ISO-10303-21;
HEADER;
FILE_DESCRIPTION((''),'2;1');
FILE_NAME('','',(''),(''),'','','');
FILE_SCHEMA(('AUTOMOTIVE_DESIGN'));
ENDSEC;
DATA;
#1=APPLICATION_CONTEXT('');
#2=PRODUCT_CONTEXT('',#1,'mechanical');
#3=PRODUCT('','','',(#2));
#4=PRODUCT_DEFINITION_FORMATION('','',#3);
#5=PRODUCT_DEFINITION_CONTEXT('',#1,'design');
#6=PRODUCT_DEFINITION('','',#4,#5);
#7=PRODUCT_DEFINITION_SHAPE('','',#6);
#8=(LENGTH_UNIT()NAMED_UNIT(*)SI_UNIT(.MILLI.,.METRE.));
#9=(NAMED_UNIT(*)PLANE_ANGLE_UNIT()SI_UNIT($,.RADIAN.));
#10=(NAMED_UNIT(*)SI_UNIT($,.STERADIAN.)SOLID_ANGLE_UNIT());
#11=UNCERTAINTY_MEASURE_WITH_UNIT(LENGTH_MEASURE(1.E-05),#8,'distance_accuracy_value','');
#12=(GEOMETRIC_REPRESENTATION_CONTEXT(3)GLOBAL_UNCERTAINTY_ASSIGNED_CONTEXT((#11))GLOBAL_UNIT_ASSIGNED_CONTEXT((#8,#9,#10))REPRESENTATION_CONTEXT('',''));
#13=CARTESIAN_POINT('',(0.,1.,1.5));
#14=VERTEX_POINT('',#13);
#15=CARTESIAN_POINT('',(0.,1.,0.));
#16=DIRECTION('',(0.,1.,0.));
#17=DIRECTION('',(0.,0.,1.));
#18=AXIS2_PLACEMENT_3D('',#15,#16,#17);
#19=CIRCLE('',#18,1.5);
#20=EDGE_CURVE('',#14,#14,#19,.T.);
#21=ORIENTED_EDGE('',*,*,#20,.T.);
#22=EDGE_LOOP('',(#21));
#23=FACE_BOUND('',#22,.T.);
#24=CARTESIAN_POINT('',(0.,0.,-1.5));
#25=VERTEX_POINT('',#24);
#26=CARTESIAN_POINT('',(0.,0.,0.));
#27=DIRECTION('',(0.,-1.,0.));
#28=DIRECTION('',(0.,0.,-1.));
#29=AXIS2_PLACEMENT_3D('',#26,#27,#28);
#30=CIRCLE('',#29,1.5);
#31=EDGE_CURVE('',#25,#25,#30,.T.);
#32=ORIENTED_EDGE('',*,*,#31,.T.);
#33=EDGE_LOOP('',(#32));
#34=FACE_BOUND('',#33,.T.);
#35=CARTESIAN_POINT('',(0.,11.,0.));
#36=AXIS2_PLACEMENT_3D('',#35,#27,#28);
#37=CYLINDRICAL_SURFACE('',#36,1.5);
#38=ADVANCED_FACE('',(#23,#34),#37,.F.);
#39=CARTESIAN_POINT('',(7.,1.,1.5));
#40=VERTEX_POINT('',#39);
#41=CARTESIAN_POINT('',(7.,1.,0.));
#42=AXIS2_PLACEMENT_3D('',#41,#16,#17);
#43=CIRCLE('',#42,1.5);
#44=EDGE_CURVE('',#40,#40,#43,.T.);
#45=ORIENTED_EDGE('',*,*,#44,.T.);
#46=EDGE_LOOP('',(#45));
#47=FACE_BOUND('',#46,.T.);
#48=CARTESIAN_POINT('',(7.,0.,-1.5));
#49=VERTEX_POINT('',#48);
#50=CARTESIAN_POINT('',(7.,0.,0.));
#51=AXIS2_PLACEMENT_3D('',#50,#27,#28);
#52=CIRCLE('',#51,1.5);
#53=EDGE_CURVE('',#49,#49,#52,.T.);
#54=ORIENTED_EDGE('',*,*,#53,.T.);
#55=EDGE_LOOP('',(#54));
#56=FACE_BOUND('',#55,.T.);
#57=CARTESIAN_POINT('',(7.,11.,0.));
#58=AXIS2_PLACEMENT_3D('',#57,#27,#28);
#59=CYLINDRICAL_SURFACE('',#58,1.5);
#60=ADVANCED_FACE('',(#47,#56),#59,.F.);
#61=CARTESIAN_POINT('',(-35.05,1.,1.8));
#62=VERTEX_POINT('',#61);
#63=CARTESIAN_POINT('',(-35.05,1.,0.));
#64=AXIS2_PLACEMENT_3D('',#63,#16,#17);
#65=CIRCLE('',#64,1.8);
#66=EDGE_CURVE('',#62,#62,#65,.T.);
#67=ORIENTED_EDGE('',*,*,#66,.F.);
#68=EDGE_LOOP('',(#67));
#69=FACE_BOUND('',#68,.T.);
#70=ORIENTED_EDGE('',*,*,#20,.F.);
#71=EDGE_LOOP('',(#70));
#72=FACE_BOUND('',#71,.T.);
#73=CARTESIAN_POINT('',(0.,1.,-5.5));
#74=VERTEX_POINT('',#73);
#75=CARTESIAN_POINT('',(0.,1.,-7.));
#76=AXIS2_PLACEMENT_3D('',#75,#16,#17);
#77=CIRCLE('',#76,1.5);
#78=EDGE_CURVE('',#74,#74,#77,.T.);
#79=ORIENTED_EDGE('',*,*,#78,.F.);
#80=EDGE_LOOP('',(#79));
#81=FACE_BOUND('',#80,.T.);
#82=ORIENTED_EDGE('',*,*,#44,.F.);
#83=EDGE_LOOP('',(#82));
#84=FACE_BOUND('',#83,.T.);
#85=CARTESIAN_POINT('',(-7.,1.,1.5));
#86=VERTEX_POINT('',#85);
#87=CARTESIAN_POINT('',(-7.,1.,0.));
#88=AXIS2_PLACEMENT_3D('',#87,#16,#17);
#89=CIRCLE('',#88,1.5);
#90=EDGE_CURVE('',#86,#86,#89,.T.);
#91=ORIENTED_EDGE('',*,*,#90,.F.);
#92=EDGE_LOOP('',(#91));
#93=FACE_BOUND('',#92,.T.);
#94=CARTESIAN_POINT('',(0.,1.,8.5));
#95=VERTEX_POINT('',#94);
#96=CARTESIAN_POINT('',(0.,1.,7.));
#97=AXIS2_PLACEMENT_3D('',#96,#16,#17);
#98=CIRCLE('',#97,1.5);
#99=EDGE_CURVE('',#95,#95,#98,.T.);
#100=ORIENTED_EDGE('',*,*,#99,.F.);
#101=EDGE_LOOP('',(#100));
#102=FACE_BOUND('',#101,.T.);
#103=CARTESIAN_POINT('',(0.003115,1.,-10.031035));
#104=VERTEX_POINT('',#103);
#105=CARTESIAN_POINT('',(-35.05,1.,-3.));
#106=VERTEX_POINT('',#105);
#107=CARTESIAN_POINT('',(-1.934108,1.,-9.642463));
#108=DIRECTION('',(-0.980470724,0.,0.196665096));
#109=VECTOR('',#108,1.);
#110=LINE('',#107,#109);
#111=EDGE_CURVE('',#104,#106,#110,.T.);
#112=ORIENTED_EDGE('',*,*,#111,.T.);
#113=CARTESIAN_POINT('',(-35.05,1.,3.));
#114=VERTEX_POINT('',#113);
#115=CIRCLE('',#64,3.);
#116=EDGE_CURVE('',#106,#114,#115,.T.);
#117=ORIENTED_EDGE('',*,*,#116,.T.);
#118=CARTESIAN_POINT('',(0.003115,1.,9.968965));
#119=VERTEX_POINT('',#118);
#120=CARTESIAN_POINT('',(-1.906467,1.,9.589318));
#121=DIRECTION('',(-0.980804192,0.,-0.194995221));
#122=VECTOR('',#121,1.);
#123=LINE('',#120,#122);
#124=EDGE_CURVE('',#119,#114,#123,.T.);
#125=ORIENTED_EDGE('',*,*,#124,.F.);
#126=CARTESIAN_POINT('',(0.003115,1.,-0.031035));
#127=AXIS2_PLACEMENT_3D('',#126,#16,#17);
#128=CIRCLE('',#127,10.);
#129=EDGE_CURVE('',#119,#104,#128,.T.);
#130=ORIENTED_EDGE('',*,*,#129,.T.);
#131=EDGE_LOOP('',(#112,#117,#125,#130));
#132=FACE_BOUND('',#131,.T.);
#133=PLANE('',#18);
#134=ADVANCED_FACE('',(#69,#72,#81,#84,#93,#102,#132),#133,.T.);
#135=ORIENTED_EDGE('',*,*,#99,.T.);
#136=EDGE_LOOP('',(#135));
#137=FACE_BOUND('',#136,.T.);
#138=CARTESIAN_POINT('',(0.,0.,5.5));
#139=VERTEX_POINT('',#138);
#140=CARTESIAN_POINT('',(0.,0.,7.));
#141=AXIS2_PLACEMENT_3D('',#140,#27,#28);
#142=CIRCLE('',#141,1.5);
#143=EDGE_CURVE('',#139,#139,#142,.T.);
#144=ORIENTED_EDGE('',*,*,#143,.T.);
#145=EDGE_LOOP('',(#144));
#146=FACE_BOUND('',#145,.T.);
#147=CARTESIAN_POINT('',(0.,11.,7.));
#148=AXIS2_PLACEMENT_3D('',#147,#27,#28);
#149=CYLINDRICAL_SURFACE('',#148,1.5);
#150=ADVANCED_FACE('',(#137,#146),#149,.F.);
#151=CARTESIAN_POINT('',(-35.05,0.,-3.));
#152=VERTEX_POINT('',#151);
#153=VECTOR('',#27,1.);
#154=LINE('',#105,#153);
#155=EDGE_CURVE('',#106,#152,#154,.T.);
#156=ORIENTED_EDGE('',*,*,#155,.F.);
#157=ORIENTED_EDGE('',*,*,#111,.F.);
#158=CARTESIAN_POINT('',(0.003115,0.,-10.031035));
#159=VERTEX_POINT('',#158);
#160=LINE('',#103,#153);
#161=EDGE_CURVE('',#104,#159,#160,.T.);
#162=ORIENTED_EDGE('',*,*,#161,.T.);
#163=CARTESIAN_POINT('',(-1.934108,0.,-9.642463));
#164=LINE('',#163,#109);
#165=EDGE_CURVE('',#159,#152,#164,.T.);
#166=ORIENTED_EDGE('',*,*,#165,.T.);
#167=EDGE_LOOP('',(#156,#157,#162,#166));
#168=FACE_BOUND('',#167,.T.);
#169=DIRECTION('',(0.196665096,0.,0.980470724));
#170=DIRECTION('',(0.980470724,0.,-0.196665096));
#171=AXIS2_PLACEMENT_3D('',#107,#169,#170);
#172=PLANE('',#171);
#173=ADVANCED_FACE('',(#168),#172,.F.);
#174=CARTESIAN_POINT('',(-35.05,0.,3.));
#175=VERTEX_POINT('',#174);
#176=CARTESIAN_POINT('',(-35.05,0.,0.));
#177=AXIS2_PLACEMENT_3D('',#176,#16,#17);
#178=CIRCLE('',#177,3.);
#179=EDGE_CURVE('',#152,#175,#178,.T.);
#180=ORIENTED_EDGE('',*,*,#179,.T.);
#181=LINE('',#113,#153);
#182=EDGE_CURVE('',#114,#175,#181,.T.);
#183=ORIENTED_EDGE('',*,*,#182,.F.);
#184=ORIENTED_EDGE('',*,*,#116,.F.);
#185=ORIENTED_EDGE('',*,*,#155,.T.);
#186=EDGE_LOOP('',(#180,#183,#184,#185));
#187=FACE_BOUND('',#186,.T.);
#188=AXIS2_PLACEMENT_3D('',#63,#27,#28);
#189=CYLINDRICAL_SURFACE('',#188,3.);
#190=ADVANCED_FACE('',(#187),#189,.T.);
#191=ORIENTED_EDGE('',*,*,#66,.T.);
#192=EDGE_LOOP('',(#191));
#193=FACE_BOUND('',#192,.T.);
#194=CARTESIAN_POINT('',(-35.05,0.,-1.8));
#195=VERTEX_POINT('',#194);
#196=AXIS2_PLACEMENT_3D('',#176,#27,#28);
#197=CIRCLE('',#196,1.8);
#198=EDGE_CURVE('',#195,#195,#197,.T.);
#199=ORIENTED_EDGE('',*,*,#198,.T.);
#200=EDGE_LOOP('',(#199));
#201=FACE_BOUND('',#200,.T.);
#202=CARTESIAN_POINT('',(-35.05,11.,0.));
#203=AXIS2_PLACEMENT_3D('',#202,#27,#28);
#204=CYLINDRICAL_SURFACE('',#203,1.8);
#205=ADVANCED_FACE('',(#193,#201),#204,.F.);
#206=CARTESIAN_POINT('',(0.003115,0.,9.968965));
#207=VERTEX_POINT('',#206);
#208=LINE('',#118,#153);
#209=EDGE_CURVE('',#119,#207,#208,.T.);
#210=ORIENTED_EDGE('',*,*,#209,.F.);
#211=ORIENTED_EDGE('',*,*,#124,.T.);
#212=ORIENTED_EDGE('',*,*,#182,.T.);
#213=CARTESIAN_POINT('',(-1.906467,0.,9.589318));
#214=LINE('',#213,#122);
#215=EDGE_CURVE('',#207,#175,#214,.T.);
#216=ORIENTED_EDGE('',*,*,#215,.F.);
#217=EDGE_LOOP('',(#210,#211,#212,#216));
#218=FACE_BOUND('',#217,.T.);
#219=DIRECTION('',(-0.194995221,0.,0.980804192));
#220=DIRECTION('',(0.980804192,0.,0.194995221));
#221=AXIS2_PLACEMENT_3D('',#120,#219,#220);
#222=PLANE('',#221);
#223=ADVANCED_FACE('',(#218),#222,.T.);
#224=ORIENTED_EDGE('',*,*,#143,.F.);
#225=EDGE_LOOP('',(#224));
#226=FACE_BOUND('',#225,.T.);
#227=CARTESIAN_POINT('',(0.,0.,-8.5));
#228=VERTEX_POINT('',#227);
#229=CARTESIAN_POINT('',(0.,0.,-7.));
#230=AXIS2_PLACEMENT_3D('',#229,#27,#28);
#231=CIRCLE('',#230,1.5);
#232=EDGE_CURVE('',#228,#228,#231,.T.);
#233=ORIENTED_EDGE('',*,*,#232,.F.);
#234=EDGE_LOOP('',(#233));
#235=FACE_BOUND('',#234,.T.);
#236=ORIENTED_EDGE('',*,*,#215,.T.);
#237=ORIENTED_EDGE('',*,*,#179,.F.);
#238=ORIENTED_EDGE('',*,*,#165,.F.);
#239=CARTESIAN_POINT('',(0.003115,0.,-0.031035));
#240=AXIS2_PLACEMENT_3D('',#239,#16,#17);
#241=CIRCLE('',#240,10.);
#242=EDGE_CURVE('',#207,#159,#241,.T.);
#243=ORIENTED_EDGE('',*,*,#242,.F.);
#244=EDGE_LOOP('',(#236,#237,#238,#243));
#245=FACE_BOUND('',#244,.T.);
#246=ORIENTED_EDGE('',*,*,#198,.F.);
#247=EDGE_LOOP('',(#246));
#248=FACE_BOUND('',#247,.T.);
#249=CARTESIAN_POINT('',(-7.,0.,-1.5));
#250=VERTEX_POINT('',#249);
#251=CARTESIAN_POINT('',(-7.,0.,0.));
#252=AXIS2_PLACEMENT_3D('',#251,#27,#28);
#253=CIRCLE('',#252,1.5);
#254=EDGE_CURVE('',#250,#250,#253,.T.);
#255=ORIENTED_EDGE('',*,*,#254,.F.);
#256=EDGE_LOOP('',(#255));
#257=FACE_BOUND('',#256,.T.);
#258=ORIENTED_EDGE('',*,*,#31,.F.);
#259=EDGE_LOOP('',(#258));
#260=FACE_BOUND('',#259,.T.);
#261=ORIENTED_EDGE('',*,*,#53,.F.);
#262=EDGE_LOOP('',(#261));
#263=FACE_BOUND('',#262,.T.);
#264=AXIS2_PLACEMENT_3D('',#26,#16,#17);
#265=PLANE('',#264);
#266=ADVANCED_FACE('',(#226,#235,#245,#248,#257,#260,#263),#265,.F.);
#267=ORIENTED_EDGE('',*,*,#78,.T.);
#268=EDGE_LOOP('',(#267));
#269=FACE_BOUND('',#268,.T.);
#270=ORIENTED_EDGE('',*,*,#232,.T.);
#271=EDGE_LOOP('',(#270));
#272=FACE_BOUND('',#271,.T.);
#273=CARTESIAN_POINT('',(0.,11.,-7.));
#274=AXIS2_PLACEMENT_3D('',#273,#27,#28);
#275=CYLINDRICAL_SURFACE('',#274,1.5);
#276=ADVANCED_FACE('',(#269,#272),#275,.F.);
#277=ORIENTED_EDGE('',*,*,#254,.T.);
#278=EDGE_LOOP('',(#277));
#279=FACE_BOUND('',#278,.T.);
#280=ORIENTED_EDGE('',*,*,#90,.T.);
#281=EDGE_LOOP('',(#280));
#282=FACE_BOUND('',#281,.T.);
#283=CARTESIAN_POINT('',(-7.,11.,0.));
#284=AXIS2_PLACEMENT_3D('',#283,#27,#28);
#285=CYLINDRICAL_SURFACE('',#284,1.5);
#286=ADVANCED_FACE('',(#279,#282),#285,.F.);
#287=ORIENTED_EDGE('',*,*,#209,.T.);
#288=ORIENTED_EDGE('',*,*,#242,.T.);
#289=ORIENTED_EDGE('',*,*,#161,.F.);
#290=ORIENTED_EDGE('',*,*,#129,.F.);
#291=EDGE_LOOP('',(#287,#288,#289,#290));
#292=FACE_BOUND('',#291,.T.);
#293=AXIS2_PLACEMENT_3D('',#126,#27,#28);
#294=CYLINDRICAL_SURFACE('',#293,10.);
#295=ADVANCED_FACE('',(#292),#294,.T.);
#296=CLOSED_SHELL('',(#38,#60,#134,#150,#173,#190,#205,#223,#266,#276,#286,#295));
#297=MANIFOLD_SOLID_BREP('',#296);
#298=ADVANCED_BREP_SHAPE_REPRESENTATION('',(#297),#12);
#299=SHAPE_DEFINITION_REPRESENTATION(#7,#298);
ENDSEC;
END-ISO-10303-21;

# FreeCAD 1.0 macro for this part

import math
import FreeCAD as App
import Part
import Sketcher

V = App.Vector

doc = App.newDocument("Part")
params = doc.addObject("Spreadsheet::Sheet", "Params")
for row, (alias, value) in enumerate([
    ("sketch1_radius", "10 mm"),
    ("sketch1_radius2", "3 mm"),
    ("pad1_length", "1 mm"),
    ("sketch2_diameter", "3 mm"),
    ("sketch2_diameter2", "3.6 mm"),
    ("pocket1_length", "11 mm"),
], start=1):
    params.set(f"A{row}", alias)
    params.set(f"B{row}", "=" + value)
    params.setAlias(f"B{row}", alias)

body = doc.addObject("PartDesign::Body", "Body")

sketch1 = doc.addObject("Sketcher::SketchObject", "Sketch")
body.addObject(sketch1)
sketch1.AttachmentSupport = (doc.XZ_Plane, [""])
sketch1.MapMode = "FlatFace"
sketch1.addGeometry([
    Part.LineSegment(V(-35, 3, 0), V(-3.8, 9.2, 0)),
    Part.LineSegment(V(-3.8, 9.2, 0), V(0, 10, 0)),
    Part.ArcOfCircle(Part.Circle(V(0, 0, 0), V(0, 0, 1), 10), math.radians(0), math.radians(90)),
    Part.ArcOfCircle(Part.Circle(V(0, 0, 0), V(0, 0, 1), 10), math.radians(-90), math.radians(0)),
    Part.LineSegment(V(0, -10, 0), V(-3.9, -9.3, 0)),
    Part.LineSegment(V(-3.9, -9.3, 0), V(-35, -3, 0)),
    Part.ArcOfCircle(Part.Circle(V(-35, 0, 0), V(0, 0, 1), 3), math.radians(90), math.radians(270)),
], False)
sketch1.addConstraint([
    Sketcher.Constraint("Coincident", 0, 2, 1, 1),
    Sketcher.Constraint("Coincident", 1, 2, 2, 2),
    Sketcher.Constraint("Tangent", 2, 1, 3, 2),
    Sketcher.Constraint("Coincident", 3, 1, 4, 1),
    Sketcher.Constraint("Coincident", 4, 2, 5, 1),
    Sketcher.Constraint("Coincident", 5, 2, 6, 2),
    Sketcher.Constraint("Coincident", 6, 1, 0, 1),
    Sketcher.Constraint("Equal", 2, 3),
    Sketcher.Constraint("Symmetric", 5, 2, 6, 1, -1),
    Sketcher.Constraint("Parallel", 0, 1),
    Sketcher.Constraint("Parallel", 4, 5),
    Sketcher.Constraint("Horizontal", 3, 3, 2, 1),
    Sketcher.Constraint("Vertical", 3, 3, 1, 2),
    Sketcher.Constraint("Vertical", 1, 2, 3, 1),
    Sketcher.Constraint("Vertical", 6, 3, 5, 2),
    Sketcher.Constraint("Radius", 2, 10.0),
    Sketcher.Constraint("Radius", 6, 3.0),
    Sketcher.Constraint("DistanceX", 6, 3, -1, 1, 35.05),
    Sketcher.Constraint("Distance", 4, 3.933302),
    Sketcher.Constraint("Distance", 5, 31.81801),
    Sketcher.Constraint("Distance", 0, 31.839252),
    Sketcher.Constraint("Distance", 1, 3.899904),
])
sketch1.setExpression("Constraints[15]", "Params.sketch1_radius")
sketch1.setExpression("Constraints[16]", "Params.sketch1_radius2")
pad1 = doc.addObject("PartDesign::Pad", "Pad")
body.addObject(pad1)
pad1.Profile = sketch1
pad1.setExpression("Length", "Params.pad1_length")
pad1.Reversed = True

sketch2 = doc.addObject("Sketcher::SketchObject", "Sketch001")
body.addObject(sketch2)
sketch2.AttachmentSupport = (doc.XZ_Plane, [""])
sketch2.MapMode = "FlatFace"
sketch2.addGeometry([
    Part.Circle(V(0, 0, 0), V(0, 0, 1), 1.5),
    Part.Circle(V(0, 7, 0), V(0, 0, 1), 1.5),
    Part.Circle(V(-35, 0, 0), V(0, 0, 1), 1.8),
    Part.Circle(V(-7, 0, 0), V(0, 0, 1), 1.5),
    Part.Circle(V(7, 0, 0), V(0, 0, 1), 1.5),
    Part.Circle(V(0, -7, 0), V(0, 0, 1), 1.5),
], False)
sketch2.addConstraint([
    Sketcher.Constraint("Coincident", 0, 3, -1, 1),
    Sketcher.Constraint("Equal", 0, 1),
    Sketcher.Constraint("Equal", 1, 3),
    Sketcher.Constraint("Equal", 3, 4),
    Sketcher.Constraint("Equal", 4, 5),
    Sketcher.Constraint("Symmetric", 3, 3, 4, 3, -1, 1),
    Sketcher.Constraint("Symmetric", 1, 3, 5, 3, -1, 1),
    Sketcher.Constraint("PointOnObject", 1, 3, -2),
    Sketcher.Constraint("PointOnObject", 2, 3, -1),
    Sketcher.Constraint("PointOnObject", 3, 3, -1),
    Sketcher.Constraint("Diameter", 0, 3.0),
    Sketcher.Constraint("Diameter", 2, 3.6),
    Sketcher.Constraint("DistanceY", -1, 1, 1, 3, 7.0),
    Sketcher.Constraint("DistanceX", 3, 3, -1, 1, 7.0),
    Sketcher.Constraint("DistanceX", 2, 3, -1, 1, 35.05),
])
sketch2.setExpression("Constraints[10]", "Params.sketch2_diameter")
sketch2.setExpression("Constraints[11]", "Params.sketch2_diameter2")
pocket1 = doc.addObject("PartDesign::Pocket", "Pocket")
body.addObject(pocket1)
pocket1.Profile = sketch2
pocket1.setExpression("Length", "Params.pocket1_length")

doc.recompute()
